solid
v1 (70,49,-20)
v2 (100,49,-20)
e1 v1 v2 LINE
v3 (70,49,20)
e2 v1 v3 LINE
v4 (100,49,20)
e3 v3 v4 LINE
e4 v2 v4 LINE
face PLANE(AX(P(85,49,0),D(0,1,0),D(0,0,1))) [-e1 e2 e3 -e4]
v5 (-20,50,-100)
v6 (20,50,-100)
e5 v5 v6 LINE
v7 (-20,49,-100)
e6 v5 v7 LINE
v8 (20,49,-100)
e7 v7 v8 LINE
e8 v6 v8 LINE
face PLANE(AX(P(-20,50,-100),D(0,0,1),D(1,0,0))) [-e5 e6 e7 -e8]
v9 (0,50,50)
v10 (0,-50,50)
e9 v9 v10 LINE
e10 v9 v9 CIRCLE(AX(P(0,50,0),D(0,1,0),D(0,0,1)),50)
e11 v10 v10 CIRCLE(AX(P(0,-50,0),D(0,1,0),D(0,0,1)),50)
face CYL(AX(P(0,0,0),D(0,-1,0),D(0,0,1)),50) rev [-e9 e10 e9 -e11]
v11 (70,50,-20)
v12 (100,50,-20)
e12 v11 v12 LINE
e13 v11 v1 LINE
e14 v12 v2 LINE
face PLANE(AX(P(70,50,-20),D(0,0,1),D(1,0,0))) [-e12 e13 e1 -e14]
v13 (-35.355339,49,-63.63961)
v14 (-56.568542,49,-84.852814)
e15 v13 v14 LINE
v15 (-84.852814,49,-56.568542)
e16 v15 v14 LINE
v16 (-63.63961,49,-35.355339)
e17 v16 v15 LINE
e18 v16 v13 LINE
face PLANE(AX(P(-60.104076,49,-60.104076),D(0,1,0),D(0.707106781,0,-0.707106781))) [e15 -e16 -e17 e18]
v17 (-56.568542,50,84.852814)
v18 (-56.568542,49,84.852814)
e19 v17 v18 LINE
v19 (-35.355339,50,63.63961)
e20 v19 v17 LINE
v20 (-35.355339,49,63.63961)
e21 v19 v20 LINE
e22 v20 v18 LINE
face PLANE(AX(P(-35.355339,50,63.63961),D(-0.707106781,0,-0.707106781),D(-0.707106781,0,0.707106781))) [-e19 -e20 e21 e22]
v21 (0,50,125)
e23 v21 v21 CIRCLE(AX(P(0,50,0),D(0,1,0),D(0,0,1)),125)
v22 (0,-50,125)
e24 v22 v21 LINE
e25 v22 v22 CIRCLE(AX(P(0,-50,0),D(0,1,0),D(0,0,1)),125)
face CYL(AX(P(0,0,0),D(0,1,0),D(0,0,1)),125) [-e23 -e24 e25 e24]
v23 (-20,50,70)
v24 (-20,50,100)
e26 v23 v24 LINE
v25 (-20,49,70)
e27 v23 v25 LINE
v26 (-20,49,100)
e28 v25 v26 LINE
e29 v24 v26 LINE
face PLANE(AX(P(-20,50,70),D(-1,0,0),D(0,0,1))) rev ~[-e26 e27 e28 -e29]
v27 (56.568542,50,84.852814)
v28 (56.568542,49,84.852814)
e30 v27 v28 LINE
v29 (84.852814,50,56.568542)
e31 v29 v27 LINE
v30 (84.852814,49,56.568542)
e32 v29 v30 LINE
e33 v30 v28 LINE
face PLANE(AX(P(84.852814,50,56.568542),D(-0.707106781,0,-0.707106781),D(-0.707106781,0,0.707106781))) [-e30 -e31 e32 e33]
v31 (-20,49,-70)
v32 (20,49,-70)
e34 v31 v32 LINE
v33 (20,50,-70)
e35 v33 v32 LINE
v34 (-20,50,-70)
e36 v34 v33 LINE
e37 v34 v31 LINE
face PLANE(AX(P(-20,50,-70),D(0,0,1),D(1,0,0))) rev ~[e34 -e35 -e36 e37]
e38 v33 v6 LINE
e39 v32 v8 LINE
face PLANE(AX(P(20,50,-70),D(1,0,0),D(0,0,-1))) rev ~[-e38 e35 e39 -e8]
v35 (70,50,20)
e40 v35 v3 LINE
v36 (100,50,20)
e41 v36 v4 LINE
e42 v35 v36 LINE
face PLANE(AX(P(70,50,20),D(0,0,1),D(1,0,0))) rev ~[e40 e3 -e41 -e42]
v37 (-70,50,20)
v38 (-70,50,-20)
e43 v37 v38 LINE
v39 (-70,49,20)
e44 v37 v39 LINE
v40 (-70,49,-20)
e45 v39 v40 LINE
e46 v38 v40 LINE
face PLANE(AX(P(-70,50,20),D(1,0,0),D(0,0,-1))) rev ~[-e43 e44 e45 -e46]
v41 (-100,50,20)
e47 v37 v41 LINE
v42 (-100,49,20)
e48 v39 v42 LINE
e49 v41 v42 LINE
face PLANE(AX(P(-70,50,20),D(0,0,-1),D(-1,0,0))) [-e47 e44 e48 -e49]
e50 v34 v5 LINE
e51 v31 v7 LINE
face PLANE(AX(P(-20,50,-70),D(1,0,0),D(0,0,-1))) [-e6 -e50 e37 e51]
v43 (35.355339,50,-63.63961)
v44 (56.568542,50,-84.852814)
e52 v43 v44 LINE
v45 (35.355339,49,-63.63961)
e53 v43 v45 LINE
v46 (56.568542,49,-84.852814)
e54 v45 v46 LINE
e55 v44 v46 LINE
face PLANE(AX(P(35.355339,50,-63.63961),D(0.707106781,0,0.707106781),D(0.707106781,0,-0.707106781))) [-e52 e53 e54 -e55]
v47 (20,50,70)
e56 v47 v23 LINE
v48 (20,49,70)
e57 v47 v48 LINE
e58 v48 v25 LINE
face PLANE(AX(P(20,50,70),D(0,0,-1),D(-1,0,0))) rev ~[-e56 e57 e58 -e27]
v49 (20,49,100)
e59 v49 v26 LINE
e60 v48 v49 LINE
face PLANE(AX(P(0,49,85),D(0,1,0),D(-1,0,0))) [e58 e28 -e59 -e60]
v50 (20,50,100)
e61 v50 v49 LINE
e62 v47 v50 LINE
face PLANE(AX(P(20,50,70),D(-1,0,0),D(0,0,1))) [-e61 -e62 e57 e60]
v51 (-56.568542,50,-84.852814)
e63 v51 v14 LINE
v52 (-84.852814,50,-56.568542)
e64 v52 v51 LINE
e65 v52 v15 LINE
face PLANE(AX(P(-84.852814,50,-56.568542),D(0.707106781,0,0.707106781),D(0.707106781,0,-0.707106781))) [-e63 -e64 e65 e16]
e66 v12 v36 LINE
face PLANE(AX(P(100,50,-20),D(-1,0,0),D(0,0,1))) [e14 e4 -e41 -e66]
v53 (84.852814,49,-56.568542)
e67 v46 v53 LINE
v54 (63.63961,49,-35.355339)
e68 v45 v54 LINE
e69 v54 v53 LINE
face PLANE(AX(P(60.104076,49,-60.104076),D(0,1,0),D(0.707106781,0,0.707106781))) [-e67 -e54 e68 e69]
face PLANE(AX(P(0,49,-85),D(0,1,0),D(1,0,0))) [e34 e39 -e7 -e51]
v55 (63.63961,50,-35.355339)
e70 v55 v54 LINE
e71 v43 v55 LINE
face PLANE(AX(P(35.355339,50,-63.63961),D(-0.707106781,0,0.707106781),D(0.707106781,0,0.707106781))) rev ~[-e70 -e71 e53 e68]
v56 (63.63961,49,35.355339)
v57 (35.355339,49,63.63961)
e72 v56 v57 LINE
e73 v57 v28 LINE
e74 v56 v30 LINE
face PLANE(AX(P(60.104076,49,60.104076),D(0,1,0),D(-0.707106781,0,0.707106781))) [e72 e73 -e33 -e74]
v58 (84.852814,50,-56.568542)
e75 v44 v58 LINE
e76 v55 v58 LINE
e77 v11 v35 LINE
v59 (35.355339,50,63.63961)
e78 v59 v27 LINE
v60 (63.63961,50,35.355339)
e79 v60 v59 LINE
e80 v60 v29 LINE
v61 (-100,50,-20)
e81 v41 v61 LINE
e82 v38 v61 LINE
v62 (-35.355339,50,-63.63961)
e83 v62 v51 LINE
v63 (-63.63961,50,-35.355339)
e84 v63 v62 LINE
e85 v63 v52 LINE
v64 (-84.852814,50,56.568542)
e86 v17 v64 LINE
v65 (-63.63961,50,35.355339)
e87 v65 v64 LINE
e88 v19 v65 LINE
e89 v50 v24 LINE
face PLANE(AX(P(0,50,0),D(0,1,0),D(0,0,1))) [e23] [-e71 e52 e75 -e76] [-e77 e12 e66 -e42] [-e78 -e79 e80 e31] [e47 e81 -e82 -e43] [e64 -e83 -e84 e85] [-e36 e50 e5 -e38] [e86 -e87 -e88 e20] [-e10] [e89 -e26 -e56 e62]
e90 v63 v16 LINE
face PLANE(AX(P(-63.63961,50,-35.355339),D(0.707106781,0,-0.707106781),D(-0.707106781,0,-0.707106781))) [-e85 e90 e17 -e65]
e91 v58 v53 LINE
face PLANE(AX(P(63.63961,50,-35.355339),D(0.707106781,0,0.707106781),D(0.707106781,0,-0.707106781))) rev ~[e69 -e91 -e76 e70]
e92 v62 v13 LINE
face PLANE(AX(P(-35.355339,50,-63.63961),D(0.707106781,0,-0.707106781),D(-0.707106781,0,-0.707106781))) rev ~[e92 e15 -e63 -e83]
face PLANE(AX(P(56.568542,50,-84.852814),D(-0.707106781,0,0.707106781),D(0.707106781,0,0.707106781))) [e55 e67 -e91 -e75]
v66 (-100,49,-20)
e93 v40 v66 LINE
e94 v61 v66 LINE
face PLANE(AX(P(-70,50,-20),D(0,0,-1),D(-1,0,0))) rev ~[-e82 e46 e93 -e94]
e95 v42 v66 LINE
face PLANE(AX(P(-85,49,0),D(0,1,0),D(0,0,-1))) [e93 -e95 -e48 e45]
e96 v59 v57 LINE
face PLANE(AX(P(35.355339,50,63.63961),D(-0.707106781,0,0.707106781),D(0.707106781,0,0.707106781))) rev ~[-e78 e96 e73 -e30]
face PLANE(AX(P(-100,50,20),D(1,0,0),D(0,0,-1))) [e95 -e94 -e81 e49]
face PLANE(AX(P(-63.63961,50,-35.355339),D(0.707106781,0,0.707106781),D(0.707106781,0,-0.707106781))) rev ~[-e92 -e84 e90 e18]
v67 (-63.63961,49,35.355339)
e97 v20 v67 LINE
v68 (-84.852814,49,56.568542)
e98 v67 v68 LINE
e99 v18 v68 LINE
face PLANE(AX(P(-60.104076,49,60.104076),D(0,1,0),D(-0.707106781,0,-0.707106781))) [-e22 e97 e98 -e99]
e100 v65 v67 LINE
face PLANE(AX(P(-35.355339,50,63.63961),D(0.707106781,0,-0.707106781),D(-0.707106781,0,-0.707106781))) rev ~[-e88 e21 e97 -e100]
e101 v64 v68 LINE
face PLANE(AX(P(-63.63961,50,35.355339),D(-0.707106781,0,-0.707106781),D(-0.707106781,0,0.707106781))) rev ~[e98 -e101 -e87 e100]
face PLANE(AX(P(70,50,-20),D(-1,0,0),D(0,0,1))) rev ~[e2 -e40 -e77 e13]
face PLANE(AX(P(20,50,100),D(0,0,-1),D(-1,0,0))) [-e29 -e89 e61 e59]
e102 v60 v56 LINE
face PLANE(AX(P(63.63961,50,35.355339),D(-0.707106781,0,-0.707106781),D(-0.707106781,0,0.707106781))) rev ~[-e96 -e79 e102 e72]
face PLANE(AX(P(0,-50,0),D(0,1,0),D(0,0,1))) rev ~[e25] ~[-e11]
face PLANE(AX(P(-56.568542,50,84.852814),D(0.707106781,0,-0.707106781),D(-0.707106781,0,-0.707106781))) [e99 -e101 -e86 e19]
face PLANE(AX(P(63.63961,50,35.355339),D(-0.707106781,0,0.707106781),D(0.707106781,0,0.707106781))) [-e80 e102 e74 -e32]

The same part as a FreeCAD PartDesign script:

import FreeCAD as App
import Part
import Sketcher
from FreeCAD import Vector
Q = App.Units.Quantity

doc = App.newDocument("Part")
body = doc.addObject("PartDesign::Body", "Body")

# Sketch on XZ plane
sketch1 = body.newObject("Sketcher::SketchObject", "Sketch")
sketch1.AttachmentSupport = (doc.getObject("XZ_Plane"), [""])
sketch1.MapMode = "FlatFace"
sketch1.addGeometry(Part.Circle(Vector(0, 0, 0), Vector(0, 0, 1), 125), False)
sketch1.addGeometry(Part.Circle(Vector(0, 0, 0), Vector(0, 0, 1), 50), False)
sketch1.addConstraint(Sketcher.Constraint("Coincident", 0, 3, -1, 1))
sketch1.addConstraint(Sketcher.Constraint("Coincident", 1, 3, -1, 1))
sketch1.addConstraint(Sketcher.Constraint("Diameter", 0, Q("250 mm")))
sketch1.addConstraint(Sketcher.Constraint("Diameter", 1, Q("100 mm")))
pad1 = body.newObject("PartDesign::Pad", "Pad")
pad1.Profile = sketch1
pad1.Length = 100
pad1.Midplane = True

# Sketch on XZ plane
sketch2 = body.newObject("Sketcher::SketchObject", "Sketch001")
sketch2.AttachmentSupport = (doc.getObject("XZ_Plane"), [""])
sketch2.MapMode = "FlatFace"
sketch2.AttachmentOffset = App.Placement(Vector(0, 0, -50), App.Rotation())
sketch2.addGeometry(Part.LineSegment(Vector(-20, -100, 0), Vector(-20, -70, 0)), False)
sketch2.addGeometry(Part.LineSegment(Vector(-20, -70, 0), Vector(20, -70, 0)), False)
sketch2.addGeometry(Part.LineSegment(Vector(20, -70, 0), Vector(20, -100, 0)), False)
sketch2.addGeometry(Part.LineSegment(Vector(20, -100, 0), Vector(-20, -100, 0)), False)
sketch2.addConstraint(Sketcher.Constraint("Coincident", 0, 2, 1, 1))
sketch2.addConstraint(Sketcher.Constraint("Coincident", 1, 2, 2, 1))
sketch2.addConstraint(Sketcher.Constraint("Coincident", 2, 2, 3, 1))
sketch2.addConstraint(Sketcher.Constraint("Coincident", 3, 2, 0, 1))
sketch2.addConstraint(Sketcher.Constraint("Vertical", 0))
sketch2.addConstraint(Sketcher.Constraint("Horizontal", 1))
sketch2.addConstraint(Sketcher.Constraint("Vertical", 2))
sketch2.addConstraint(Sketcher.Constraint("Horizontal", 3))
sketch2.addConstraint(Sketcher.Constraint("DistanceX", 1, 1, 1, 2, Q("40 mm")))
sketch2.addConstraint(Sketcher.Constraint("DistanceY", 0, 1, 0, 2, Q("30 mm")))
sketch2.addConstraint(Sketcher.Constraint("DistanceX", 0, 2, -1, 1, Q("20 mm")))
sketch2.addConstraint(Sketcher.Constraint("DistanceY", 0, 2, -1, 1, Q("70 mm")))
pocket1 = body.newObject("PartDesign::Pocket", "Pocket")
pocket1.Profile = sketch2
pocket1.Length = 1
pocket1.Reversed = True
doc.recompute()

polarpattern = body.newObject("PartDesign::PolarPattern", "PolarPattern")
polarpattern.Originals = [pocket1]
polarpattern.Axis = (doc.getObject("Y_Axis"), [""])
polarpattern.Angle = 360
polarpattern.Occurrences = 8
body.Tip = polarpattern

doc.recompute()
